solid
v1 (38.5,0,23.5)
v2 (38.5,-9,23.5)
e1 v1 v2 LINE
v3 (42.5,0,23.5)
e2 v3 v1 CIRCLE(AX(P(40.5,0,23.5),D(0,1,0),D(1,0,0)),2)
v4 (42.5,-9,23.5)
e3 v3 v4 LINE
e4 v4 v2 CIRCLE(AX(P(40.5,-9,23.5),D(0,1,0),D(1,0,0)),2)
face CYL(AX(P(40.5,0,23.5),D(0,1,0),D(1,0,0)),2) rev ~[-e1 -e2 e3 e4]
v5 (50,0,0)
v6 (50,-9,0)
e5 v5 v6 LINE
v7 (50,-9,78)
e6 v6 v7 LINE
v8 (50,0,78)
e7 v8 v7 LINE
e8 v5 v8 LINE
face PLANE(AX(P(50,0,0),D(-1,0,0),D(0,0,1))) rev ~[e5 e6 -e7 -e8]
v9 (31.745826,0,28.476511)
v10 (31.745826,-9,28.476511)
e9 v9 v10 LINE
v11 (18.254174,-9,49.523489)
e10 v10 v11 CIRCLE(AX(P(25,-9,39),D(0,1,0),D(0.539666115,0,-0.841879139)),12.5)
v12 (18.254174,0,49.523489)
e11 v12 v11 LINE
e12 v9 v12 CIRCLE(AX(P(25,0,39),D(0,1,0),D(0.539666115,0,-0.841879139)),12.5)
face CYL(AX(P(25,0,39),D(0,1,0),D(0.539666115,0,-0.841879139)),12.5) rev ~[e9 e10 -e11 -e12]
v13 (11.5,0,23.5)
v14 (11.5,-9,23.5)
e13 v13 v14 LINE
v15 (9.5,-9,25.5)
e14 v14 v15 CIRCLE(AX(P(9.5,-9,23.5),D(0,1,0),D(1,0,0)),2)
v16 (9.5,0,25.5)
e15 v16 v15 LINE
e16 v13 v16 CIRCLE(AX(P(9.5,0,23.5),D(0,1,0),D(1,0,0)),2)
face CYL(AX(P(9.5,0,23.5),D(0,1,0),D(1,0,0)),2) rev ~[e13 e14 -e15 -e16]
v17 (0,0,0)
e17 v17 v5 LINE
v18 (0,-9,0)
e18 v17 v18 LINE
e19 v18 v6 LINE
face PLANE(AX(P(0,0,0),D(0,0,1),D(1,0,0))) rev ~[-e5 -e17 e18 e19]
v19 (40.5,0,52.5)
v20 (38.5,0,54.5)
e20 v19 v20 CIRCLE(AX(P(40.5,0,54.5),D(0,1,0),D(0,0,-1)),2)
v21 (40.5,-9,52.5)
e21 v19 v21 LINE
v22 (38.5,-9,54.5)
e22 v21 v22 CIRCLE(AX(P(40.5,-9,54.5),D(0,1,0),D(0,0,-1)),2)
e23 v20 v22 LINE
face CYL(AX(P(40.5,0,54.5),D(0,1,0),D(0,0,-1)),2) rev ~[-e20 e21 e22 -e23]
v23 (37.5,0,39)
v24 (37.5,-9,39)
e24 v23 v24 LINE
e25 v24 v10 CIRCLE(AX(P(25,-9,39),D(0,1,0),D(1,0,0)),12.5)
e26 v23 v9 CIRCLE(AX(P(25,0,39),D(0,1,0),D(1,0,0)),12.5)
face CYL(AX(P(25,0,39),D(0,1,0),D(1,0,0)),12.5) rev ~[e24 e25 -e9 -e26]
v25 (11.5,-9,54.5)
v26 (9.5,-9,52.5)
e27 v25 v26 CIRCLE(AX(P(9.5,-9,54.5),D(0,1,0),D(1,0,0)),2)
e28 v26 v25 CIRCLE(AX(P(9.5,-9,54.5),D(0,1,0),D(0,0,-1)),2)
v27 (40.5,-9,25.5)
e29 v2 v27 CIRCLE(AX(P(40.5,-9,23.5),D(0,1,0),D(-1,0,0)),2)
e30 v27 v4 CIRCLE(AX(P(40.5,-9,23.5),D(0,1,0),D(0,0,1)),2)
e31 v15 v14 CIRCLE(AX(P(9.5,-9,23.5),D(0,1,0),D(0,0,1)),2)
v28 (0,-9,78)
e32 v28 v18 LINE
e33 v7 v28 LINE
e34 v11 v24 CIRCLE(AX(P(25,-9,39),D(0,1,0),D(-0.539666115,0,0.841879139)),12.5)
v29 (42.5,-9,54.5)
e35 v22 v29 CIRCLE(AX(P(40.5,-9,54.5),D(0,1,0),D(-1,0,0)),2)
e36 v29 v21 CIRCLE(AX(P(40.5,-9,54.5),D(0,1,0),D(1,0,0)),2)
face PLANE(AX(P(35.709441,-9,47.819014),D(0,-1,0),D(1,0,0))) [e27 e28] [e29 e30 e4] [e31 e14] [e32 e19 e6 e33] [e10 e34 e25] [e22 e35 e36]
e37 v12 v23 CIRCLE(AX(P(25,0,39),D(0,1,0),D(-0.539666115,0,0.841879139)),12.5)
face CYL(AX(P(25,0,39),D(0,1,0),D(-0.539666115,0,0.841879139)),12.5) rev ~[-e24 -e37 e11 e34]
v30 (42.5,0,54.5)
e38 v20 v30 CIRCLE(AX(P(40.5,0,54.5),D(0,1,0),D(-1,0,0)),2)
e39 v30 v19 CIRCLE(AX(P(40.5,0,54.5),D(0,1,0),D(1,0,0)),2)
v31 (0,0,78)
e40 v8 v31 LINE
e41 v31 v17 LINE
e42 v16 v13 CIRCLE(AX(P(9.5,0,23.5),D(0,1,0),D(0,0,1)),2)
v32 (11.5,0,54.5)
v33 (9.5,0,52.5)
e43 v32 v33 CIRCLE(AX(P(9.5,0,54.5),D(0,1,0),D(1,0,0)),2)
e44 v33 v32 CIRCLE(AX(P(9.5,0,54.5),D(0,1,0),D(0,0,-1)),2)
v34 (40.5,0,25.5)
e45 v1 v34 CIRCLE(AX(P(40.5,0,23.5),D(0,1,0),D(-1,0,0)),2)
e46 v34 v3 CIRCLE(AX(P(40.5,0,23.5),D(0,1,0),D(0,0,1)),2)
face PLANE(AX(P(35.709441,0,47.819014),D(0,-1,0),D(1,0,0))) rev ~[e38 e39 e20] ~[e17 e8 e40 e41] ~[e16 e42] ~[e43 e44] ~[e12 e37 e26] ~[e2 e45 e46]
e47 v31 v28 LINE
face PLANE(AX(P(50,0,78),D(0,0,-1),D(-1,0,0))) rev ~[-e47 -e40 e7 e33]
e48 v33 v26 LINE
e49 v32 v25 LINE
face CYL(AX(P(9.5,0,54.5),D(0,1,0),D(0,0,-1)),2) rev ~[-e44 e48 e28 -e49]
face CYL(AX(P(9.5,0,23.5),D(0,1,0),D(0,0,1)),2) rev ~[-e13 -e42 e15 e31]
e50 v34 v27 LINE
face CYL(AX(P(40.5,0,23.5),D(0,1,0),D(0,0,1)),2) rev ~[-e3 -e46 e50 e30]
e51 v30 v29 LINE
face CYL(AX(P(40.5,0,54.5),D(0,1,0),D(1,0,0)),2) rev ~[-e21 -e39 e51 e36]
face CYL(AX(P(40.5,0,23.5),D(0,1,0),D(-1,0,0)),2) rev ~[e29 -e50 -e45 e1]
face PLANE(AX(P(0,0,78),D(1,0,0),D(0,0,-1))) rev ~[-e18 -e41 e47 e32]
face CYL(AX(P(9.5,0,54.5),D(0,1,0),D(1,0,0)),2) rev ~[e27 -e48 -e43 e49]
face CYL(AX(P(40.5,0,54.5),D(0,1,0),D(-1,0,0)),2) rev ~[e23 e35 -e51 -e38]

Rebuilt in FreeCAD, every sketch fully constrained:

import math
import FreeCAD as App
import Part
import Sketcher


def add_polygon(sketch, points):
    """Adds a closed chain of lines whose ends are joined by coincident constraints."""
    first, n = sketch.GeometryCount, len(points)
    for a, b in zip(points, points[1:] + points[:1]):
        sketch.addGeometry(Part.LineSegment(App.Vector(*a, 0), App.Vector(*b, 0)), False)
    for i in range(n):
        sketch.addConstraint(Sketcher.Constraint("Coincident", first + i, 2, first + (i + 1) % n, 1))

doc = App.newDocument("Part")
body = doc.addObject("PartDesign::Body", "Body")

# Sketch on XZ plane
sketch1 = body.newObject("Sketcher::SketchObject", "Sketch")
sketch1.AttachmentSupport = (doc.getObject("XZ_Plane"), [""])
sketch1.MapMode = "FlatFace"
add_polygon(sketch1, [(50, 0), (50, 78), (0, 78), (0, 0)])  # lines 0-3
sketch1.addGeometry(Part.ArcOfCircle(Part.Circle(App.Vector(40.5, 54.5, 0), App.Vector(0, 0, 1), 2), math.radians(0), math.radians(180)), False)  # 4
sketch1.addGeometry(Part.ArcOfCircle(Part.Circle(App.Vector(40.5, 54.5, 0), App.Vector(0, 0, 1), 2), math.radians(-90), math.radians(0)), False)  # 5
sketch1.addGeometry(Part.ArcOfCircle(Part.Circle(App.Vector(40.5, 54.5, 0), App.Vector(0, 0, 1), 2), math.radians(180), math.radians(270)), False)  # 6
sketch1.addGeometry(Part.ArcOfCircle(Part.Circle(App.Vector(40.5, 23.5, 0), App.Vector(0, 0, 1), 2), math.radians(0), math.radians(90)), False)  # 7
sketch1.addGeometry(Part.ArcOfCircle(Part.Circle(App.Vector(40.5, 23.5, 0), App.Vector(0, 0, 1), 2), math.radians(180), math.radians(360)), False)  # 8
sketch1.addGeometry(Part.ArcOfCircle(Part.Circle(App.Vector(40.5, 23.5, 0), App.Vector(0, 0, 1), 2), math.radians(90), math.radians(180)), False)  # 9
sketch1.addGeometry(Part.ArcOfCircle(Part.Circle(App.Vector(9.5, 23.5, 0), App.Vector(0, 0, 1), 2), math.radians(90), math.radians(360)), False)  # 10
sketch1.addGeometry(Part.ArcOfCircle(Part.Circle(App.Vector(9.5, 23.5, 0), App.Vector(0, 0, 1), 2), math.radians(0), math.radians(90)), False)  # 11
sketch1.addGeometry(Part.ArcOfCircle(Part.Circle(App.Vector(9.5, 54.5, 0), App.Vector(0, 0, 1), 2), math.radians(0), math.radians(270)), False)  # 12
sketch1.addGeometry(Part.ArcOfCircle(Part.Circle(App.Vector(9.5, 54.5, 0), App.Vector(0, 0, 1), 2), math.radians(-90), math.radians(0)), False)  # 13
sketch1.addGeometry(Part.ArcOfCircle(Part.Circle(App.Vector(25, 39, 0), App.Vector(0, 0, 1), 12.5), math.radians(0), math.radians(123)), False)  # 14
sketch1.addGeometry(Part.ArcOfCircle(Part.Circle(App.Vector(25, 39, 0), App.Vector(0, 0, 1), 12.5), math.radians(-57), math.radians(0)), False)  # 15
sketch1.addGeometry(Part.ArcOfCircle(Part.Circle(App.Vector(25, 39, 0), App.Vector(0, 0, 1), 12.5), math.radians(123), math.radians(303)), False)  # 16
sketch1.addConstraint([
    Sketcher.Constraint("Tangent", 4, 1, 5, 2),
    Sketcher.Constraint("Tangent", 5, 1, 6, 2),
    Sketcher.Constraint("Tangent", 6, 1, 4, 2),
    Sketcher.Constraint("Tangent", 7, 1, 8, 2),
    Sketcher.Constraint("Tangent", 8, 1, 9, 2),
    Sketcher.Constraint("Tangent", 9, 1, 7, 2),
    Sketcher.Constraint("Tangent", 10, 1, 11, 2),
    Sketcher.Constraint("Coincident", 11, 1, 10, 2),
    Sketcher.Constraint("Tangent", 12, 1, 13, 2),
    Sketcher.Constraint("Coincident", 13, 1, 12, 2),
    Sketcher.Constraint("Tangent", 14, 1, 15, 2),
    Sketcher.Constraint("Tangent", 15, 1, 16, 2),
    Sketcher.Constraint("Tangent", 16, 1, 14, 2),
    Sketcher.Constraint("Vertical", 0),
    Sketcher.Constraint("Horizontal", 1),
    Sketcher.Constraint("Vertical", 2),
    Sketcher.Constraint("Horizontal", 3),
    Sketcher.Constraint("Coincident", 2, 2, -1, 1),
    Sketcher.Constraint("Equal", 6, 7),
    Sketcher.Constraint("Equal", 9, 10),
    Sketcher.Constraint("Equal", 11, 12),
    Sketcher.Constraint("Horizontal", 9, 3, 10, 3),
    Sketcher.Constraint("Horizontal", 6, 3, 12, 3),
    Sketcher.Constraint("Horizontal", 13, 3, 4, 1),
    Sketcher.Constraint("Horizontal", 4, 1, 6, 1),
    Sketcher.Constraint("Horizontal", 11, 3, 7, 1),
    Sketcher.Constraint("Horizontal", 7, 1, 8, 1),
    Sketcher.Constraint("Horizontal", 8, 1, 11, 1),
    Sketcher.Constraint("Horizontal", 6, 1, 12, 1),
    Sketcher.Constraint("Horizontal", 16, 3, 14, 1),
    Sketcher.Constraint("Vertical", 6, 3, 7, 3),
    Sketcher.Constraint("Vertical", 11, 3, 12, 3),
    Sketcher.Constraint("Vertical", 9, 3, 5, 1),
    Sketcher.Constraint("Vertical", 5, 1, 9, 1),
    Sketcher.Constraint("Vertical", 13, 3, 10, 1),
    Sketcher.Constraint("Vertical", 10, 1, 13, 1),
    Sketcher.Constraint("Radius", 4, 2.0),
    Sketcher.Constraint("Radius", 14, 12.5),
    Sketcher.Constraint("DistanceX", 1, 2, 1, 1, 50.0),
    Sketcher.Constraint("DistanceY", 0, 1, 0, 2, 78.0),
    Sketcher.Constraint("DistanceX", -1, 1, 14, 3, 25.0),
    Sketcher.Constraint("DistanceY", -1, 1, 14, 3, 39.0),
    Sketcher.Constraint("DistanceY", 7, 3, 4, 3, 31.0),
    Sketcher.Constraint("DistanceX", 10, 3, 7, 3, 31.0),
    Sketcher.Constraint("DistanceX", 14, 1, 5, 1, 3.0),
    Sketcher.Constraint("DistanceY", -1, 1, 4, 3, 54.5),
    Sketcher.Constraint("DistanceY", -1, 1, 15, 1, 28.476511),
    Sketcher.Constraint("DistanceY", -1, 1, 16, 1, 49.523489),
])
pad1 = body.newObject("PartDesign::Pad", "Pad")
pad1.Profile = sketch1
pad1.Length = 9

doc.recompute()
